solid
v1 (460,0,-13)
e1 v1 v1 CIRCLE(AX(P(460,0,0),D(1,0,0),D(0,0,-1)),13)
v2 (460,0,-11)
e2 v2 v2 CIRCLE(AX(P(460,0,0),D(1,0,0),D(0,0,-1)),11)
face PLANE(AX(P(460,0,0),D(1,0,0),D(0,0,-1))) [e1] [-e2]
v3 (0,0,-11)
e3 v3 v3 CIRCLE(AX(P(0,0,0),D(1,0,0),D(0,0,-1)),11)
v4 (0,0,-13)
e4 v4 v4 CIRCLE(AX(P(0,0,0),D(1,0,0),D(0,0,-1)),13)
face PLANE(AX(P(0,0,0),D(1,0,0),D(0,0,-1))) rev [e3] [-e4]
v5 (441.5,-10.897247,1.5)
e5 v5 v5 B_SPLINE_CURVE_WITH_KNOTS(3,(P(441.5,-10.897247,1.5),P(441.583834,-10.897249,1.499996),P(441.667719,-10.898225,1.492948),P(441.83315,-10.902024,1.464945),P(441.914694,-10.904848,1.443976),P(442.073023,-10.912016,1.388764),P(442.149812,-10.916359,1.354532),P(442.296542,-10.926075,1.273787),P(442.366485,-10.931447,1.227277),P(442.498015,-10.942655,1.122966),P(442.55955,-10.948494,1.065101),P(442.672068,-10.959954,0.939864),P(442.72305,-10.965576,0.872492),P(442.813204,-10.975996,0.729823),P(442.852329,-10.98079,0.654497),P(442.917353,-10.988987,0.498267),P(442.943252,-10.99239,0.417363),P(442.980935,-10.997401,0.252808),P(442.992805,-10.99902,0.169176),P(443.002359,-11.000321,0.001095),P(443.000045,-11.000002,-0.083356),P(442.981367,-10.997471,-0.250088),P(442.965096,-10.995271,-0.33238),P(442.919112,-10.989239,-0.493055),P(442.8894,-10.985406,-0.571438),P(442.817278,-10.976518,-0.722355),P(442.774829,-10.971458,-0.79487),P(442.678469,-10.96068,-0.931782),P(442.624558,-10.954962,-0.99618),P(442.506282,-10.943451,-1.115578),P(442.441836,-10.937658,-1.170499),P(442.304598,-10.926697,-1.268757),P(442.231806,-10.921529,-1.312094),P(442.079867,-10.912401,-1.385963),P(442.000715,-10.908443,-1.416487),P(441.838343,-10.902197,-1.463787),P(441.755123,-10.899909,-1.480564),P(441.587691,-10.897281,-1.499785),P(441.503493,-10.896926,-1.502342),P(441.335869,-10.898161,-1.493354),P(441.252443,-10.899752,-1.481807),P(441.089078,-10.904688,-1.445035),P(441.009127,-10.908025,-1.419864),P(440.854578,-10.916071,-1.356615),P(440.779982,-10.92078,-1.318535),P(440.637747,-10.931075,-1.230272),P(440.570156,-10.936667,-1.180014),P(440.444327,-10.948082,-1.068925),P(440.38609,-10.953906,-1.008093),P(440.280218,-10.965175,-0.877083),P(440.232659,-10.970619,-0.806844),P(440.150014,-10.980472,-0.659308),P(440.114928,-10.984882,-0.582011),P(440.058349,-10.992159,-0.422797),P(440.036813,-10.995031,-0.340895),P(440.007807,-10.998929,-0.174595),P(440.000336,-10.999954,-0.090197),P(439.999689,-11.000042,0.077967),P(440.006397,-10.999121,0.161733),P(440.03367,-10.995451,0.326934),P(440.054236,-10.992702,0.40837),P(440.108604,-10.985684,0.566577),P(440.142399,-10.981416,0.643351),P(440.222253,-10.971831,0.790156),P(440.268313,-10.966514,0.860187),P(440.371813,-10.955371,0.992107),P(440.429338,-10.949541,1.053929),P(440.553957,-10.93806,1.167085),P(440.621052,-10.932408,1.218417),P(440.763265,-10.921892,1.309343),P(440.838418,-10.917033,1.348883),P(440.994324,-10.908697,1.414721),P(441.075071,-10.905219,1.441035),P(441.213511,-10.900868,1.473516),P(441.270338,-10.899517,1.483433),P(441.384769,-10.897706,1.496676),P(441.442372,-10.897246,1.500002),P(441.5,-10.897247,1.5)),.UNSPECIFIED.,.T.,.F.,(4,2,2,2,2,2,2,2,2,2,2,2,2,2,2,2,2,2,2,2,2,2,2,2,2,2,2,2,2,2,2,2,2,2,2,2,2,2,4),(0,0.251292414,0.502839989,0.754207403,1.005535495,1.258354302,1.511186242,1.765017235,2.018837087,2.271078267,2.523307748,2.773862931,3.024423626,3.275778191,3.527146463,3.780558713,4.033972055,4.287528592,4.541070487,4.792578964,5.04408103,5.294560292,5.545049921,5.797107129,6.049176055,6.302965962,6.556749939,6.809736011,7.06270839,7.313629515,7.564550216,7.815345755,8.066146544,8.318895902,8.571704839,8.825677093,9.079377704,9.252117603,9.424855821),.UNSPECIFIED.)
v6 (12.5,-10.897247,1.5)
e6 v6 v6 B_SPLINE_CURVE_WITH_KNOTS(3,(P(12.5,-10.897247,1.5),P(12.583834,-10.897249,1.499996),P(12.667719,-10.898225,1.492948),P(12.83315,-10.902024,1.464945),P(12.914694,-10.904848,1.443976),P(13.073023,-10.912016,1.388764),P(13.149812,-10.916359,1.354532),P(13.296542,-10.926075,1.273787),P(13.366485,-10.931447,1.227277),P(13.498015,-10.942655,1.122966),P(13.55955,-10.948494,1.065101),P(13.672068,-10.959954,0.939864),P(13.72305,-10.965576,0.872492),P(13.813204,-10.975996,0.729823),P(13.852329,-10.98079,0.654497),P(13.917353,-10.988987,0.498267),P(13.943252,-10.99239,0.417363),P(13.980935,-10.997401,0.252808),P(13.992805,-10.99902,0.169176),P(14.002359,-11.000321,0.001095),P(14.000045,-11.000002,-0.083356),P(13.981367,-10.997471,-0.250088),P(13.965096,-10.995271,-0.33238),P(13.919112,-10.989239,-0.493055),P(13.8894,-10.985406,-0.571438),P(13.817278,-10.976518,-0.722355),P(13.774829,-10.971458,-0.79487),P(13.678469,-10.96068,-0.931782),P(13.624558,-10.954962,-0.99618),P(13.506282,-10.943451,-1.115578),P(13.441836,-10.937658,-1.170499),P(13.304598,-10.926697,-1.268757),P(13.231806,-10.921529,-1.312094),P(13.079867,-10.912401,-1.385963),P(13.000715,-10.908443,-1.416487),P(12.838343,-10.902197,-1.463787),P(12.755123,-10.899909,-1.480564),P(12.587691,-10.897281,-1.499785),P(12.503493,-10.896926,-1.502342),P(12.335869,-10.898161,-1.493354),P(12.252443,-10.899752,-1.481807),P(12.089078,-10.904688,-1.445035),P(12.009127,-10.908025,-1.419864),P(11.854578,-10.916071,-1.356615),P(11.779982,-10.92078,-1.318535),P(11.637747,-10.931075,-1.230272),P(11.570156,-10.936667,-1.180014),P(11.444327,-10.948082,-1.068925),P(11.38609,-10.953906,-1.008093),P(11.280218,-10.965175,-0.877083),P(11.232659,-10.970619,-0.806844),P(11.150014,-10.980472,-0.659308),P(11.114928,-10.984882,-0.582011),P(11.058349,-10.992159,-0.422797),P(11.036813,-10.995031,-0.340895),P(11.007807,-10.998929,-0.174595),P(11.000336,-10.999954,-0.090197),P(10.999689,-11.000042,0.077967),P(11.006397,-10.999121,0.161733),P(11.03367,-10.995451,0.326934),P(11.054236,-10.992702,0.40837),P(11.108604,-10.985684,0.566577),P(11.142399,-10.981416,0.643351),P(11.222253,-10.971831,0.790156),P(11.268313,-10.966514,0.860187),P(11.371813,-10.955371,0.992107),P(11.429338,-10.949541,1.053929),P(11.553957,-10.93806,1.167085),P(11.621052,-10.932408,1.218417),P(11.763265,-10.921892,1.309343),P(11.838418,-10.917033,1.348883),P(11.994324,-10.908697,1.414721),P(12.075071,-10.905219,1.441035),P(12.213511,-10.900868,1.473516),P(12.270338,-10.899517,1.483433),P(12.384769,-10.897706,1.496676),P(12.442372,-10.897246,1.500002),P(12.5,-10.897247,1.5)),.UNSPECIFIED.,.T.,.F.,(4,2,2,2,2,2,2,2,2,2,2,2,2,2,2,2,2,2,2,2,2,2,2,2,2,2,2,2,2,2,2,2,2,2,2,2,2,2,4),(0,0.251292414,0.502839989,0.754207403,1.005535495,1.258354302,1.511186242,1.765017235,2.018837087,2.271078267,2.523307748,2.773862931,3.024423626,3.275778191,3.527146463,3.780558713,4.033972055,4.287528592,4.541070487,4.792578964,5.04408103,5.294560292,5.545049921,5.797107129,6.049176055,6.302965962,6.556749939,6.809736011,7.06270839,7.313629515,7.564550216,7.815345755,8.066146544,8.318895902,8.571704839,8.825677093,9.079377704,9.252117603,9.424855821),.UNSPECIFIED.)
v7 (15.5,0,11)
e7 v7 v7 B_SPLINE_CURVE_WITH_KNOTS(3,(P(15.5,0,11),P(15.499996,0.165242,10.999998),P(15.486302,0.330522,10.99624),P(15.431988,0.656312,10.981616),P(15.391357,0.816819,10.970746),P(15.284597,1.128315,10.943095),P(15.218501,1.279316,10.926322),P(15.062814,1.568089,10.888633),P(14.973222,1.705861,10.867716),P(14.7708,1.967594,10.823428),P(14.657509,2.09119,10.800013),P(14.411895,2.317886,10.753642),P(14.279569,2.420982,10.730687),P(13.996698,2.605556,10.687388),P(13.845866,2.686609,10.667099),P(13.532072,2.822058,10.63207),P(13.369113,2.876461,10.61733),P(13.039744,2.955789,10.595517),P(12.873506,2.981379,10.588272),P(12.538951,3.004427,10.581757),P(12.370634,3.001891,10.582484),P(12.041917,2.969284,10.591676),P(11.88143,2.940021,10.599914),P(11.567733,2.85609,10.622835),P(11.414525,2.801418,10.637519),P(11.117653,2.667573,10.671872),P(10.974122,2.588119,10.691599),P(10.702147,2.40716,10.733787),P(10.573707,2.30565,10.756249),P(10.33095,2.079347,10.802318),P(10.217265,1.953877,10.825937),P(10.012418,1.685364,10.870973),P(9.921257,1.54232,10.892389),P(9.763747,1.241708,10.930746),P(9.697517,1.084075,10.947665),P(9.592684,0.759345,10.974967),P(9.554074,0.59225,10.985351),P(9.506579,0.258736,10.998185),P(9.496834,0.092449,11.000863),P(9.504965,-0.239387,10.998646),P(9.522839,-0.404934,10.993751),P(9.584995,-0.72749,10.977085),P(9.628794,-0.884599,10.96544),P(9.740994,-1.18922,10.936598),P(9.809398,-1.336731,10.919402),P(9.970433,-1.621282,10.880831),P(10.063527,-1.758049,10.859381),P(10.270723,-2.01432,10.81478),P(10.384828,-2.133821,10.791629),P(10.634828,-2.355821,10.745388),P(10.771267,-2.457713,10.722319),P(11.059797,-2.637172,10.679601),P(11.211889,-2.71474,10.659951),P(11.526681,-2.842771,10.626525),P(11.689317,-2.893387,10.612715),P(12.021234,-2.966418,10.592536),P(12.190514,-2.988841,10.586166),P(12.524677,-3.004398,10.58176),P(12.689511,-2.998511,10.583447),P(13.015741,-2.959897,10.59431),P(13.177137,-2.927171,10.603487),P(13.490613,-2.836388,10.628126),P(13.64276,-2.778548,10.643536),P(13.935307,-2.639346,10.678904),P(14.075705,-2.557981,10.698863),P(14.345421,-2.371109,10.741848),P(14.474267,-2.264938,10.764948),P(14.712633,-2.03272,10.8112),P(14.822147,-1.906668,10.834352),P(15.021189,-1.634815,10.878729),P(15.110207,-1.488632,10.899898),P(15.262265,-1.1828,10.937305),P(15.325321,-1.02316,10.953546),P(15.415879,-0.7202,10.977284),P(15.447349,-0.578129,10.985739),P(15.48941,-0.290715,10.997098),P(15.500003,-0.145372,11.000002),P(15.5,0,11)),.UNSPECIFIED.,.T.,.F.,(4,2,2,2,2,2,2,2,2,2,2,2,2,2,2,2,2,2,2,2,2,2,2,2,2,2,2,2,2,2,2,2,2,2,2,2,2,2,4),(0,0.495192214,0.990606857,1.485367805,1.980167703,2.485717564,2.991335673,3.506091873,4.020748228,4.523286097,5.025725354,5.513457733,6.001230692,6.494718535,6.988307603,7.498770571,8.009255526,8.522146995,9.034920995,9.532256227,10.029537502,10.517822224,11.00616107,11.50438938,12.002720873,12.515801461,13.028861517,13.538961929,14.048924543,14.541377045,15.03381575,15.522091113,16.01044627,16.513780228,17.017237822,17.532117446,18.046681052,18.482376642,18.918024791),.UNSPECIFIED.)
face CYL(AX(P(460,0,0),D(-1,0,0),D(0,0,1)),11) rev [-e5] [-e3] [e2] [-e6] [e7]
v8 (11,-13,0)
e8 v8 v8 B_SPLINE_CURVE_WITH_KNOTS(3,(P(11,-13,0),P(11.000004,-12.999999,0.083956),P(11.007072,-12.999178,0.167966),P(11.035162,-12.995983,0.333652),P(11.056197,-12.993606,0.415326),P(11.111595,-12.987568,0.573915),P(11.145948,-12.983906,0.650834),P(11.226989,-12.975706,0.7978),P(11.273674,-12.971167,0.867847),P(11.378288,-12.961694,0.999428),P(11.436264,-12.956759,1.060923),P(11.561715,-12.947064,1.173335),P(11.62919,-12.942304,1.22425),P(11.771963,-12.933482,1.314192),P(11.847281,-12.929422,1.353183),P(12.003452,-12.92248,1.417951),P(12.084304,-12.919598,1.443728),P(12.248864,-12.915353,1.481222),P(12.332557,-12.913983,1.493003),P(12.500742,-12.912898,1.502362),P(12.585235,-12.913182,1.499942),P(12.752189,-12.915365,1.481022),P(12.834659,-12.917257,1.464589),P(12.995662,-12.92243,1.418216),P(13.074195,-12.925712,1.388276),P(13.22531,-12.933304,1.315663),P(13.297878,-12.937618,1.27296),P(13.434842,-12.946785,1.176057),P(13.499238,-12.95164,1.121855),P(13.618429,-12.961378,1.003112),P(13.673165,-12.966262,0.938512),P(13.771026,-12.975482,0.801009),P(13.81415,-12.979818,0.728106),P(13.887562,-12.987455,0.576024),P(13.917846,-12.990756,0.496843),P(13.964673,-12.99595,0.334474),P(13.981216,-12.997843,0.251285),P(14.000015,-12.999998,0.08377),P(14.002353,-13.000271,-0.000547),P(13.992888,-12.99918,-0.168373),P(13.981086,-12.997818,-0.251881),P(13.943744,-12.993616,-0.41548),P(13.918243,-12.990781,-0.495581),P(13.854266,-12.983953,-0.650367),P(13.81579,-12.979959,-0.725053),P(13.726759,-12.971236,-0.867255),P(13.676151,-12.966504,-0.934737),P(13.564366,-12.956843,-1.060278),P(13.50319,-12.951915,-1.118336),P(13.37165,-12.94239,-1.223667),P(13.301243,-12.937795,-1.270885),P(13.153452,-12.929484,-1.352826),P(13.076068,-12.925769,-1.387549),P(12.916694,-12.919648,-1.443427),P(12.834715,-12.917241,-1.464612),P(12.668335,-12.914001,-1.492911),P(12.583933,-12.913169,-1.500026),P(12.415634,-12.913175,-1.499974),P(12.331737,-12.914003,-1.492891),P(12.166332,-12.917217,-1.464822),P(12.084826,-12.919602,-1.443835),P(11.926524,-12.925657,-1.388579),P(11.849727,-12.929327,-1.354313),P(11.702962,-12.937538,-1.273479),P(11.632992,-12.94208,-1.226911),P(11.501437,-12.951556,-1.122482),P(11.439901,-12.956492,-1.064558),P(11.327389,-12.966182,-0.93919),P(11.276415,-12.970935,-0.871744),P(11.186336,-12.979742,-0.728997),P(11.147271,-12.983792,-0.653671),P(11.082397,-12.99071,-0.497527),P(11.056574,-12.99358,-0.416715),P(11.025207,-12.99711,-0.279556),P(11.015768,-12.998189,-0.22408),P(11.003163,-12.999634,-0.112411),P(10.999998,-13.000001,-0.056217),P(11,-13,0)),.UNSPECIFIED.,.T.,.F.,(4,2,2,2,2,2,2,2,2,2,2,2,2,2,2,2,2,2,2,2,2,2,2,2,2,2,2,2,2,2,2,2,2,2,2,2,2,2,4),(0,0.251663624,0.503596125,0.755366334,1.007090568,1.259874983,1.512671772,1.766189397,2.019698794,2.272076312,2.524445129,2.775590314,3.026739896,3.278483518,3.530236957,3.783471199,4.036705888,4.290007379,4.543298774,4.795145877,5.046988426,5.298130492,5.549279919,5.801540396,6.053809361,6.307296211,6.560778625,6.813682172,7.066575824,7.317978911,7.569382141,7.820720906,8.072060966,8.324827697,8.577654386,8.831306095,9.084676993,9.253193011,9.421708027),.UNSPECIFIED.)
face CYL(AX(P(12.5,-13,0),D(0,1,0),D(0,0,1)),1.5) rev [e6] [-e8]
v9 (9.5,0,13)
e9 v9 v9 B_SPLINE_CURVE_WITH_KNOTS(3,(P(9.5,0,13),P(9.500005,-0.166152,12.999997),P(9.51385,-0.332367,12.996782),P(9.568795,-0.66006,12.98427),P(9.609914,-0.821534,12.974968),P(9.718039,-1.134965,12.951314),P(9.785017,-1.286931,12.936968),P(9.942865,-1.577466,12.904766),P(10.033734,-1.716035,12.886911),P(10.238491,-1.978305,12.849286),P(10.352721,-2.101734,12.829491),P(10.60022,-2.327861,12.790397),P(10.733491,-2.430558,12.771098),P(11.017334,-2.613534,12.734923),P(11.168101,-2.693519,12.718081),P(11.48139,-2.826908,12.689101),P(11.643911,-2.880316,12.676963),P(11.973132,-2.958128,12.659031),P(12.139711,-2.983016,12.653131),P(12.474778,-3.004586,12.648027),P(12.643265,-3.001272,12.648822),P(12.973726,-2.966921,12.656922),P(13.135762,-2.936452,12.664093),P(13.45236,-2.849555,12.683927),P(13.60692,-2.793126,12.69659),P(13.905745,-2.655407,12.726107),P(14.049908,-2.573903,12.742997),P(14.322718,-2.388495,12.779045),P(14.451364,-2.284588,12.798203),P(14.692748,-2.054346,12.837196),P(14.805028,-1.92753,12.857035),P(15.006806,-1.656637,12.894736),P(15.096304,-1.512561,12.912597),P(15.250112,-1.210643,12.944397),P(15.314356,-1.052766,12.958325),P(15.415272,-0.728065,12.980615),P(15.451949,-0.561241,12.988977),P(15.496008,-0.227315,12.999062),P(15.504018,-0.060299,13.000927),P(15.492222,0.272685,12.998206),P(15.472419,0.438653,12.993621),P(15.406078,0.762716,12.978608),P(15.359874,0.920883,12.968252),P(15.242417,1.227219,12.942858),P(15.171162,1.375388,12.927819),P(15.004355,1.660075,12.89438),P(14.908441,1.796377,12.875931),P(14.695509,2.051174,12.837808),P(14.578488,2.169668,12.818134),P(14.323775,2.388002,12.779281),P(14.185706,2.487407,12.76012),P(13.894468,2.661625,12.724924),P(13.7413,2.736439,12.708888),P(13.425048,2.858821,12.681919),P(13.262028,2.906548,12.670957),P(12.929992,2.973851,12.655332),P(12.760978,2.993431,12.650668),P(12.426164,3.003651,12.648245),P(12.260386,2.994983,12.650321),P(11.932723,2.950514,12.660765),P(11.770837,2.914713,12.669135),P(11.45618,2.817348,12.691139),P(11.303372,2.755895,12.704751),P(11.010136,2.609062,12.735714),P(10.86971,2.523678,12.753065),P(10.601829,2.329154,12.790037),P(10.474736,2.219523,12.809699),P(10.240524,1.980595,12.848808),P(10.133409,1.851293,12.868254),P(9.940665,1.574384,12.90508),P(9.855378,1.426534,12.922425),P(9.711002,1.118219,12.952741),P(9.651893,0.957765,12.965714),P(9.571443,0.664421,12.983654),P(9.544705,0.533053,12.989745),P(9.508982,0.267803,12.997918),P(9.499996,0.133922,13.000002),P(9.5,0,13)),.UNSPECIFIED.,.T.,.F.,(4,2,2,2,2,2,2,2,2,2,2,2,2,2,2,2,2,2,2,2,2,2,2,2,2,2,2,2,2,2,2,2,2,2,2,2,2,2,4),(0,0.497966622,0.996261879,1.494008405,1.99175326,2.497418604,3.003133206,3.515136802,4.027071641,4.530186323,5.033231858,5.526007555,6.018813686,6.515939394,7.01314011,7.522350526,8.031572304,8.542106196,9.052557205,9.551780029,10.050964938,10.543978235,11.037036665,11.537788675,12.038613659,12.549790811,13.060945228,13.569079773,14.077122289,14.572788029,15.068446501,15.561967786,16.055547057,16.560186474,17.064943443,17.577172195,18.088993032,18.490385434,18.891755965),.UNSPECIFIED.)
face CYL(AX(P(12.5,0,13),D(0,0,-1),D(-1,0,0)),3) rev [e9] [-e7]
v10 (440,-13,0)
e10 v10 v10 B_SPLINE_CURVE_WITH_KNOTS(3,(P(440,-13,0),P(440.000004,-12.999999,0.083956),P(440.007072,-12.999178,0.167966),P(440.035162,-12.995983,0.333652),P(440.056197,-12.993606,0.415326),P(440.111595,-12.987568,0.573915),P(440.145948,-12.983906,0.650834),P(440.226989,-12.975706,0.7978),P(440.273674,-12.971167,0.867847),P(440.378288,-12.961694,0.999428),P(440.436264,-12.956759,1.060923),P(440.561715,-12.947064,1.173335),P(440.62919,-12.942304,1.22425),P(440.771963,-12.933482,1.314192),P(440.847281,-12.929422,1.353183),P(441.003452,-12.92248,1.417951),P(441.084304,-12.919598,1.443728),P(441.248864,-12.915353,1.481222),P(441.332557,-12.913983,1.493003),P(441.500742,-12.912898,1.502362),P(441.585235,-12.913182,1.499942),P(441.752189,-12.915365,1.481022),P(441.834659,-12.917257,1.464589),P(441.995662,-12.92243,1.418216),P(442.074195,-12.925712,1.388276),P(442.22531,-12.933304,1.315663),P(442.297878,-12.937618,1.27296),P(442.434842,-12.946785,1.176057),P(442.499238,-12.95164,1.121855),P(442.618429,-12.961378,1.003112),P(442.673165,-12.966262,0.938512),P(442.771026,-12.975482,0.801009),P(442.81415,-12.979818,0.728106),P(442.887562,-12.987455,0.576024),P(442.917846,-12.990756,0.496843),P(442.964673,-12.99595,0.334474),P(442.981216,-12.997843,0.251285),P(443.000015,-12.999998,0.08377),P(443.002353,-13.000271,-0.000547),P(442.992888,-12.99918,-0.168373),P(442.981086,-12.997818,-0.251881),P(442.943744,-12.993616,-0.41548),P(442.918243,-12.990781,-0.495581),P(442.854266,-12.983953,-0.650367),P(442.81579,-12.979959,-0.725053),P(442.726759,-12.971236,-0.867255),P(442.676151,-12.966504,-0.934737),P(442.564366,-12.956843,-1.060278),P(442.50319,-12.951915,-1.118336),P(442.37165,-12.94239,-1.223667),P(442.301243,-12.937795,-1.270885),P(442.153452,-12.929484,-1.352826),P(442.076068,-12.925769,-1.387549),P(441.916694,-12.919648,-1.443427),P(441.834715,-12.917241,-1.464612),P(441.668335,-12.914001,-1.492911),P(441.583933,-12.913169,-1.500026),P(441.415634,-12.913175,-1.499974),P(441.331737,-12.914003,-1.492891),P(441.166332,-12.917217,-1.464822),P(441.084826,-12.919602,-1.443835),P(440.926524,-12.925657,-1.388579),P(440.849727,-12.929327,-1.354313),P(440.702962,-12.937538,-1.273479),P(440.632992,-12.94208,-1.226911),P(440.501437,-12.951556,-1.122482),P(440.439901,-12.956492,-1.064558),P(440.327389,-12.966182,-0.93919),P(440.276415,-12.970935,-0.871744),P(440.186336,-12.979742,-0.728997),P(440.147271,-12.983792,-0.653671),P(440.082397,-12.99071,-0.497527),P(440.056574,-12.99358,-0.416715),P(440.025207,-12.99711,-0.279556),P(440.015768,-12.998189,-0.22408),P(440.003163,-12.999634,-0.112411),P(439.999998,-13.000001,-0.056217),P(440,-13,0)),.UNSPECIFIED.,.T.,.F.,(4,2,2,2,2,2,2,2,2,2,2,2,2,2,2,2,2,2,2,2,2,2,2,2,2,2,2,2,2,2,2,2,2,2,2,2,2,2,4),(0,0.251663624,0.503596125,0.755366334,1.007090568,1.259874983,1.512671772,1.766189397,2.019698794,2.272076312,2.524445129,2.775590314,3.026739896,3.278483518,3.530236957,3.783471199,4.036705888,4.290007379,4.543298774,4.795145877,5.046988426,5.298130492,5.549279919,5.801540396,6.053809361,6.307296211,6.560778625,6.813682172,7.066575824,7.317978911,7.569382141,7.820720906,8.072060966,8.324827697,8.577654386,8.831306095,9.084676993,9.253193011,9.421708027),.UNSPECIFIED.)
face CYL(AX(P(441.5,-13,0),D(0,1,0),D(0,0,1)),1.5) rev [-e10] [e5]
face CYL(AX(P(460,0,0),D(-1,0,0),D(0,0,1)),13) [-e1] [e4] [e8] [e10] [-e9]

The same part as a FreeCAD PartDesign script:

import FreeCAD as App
import Part
import Sketcher

V = App.Vector

doc = App.newDocument("Part")
body = doc.addObject("PartDesign::Body", "Body")

# Sketch on YZ plane
sketch1 = doc.addObject("Sketcher::SketchObject", "Sketch")
body.addObject(sketch1)
sketch1.AttachmentSupport = (doc.YZ_Plane, [""])
sketch1.MapMode = "FlatFace"
sketch1.addGeometry(Part.Circle(V(0, 0, 0), V(0, 0, 1), 13), False)
sketch1.addGeometry(Part.Circle(V(0, 0, 0), V(0, 0, 1), 11), False)
sketch1.addConstraint(Sketcher.Constraint("Coincident", 0, 3, -1, 1))
sketch1.addConstraint(Sketcher.Constraint("Coincident", 1, 3, -1, 1))
sketch1.addConstraint(Sketcher.Constraint("Diameter", 0, 26.0))
sketch1.addConstraint(Sketcher.Constraint("Diameter", 1, 22.0))
pad1 = doc.addObject("PartDesign::Pad", "Pad")
body.addObject(pad1)
pad1.Profile = sketch1
pad1.Length = 460

# Sketch on XZ plane
sketch2 = doc.addObject("Sketcher::SketchObject", "Sketch001")
body.addObject(sketch2)
sketch2.AttachmentSupport = (doc.XZ_Plane, [""])
sketch2.MapMode = "FlatFace"
sketch2.addGeometry(Part.Circle(V(12.5, 0, 0), V(0, 0, 1), 1.5), False)
sketch2.addGeometry(Part.Circle(V(441.5, 0, 0), V(0, 0, 1), 1.5), False)
sketch2.addConstraint(Sketcher.Constraint("Equal", 0, 1))
sketch2.addConstraint(Sketcher.Constraint("PointOnObject", 0, 3, -1))
sketch2.addConstraint(Sketcher.Constraint("PointOnObject", 1, 3, -1))
sketch2.addConstraint(Sketcher.Constraint("Diameter", 0, 3.0))
sketch2.addConstraint(Sketcher.Constraint("DistanceX", 0, 3, 1, 3, 429.0))
sketch2.addConstraint(Sketcher.Constraint("DistanceX", -1, 1, 0, 3, 12.5))
pocket1 = doc.addObject("PartDesign::Pocket", "Pocket")
body.addObject(pocket1)
pocket1.Profile = sketch2
pocket1.Type = "ThroughAll"
pocket1.Reversed = True

# Sketch on XY plane
sketch3 = doc.addObject("Sketcher::SketchObject", "Sketch002")
body.addObject(sketch3)
sketch3.AttachmentSupport = (doc.XY_Plane, [""])
sketch3.MapMode = "FlatFace"
sketch3.addGeometry(Part.Circle(V(12.5, 0, 0), V(0, 0, 1), 3), False)
sketch3.addConstraint(Sketcher.Constraint("PointOnObject", 0, 3, -1))
sketch3.addConstraint(Sketcher.Constraint("Diameter", 0, 6.0))
sketch3.addConstraint(Sketcher.Constraint("DistanceX", -1, 1, 0, 3, 12.5))
pocket2 = doc.addObject("PartDesign::Pocket", "Pocket001")
body.addObject(pocket2)
pocket2.Profile = sketch3
pocket2.Type = "ThroughAll"
pocket2.Reversed = True

doc.recompute()
